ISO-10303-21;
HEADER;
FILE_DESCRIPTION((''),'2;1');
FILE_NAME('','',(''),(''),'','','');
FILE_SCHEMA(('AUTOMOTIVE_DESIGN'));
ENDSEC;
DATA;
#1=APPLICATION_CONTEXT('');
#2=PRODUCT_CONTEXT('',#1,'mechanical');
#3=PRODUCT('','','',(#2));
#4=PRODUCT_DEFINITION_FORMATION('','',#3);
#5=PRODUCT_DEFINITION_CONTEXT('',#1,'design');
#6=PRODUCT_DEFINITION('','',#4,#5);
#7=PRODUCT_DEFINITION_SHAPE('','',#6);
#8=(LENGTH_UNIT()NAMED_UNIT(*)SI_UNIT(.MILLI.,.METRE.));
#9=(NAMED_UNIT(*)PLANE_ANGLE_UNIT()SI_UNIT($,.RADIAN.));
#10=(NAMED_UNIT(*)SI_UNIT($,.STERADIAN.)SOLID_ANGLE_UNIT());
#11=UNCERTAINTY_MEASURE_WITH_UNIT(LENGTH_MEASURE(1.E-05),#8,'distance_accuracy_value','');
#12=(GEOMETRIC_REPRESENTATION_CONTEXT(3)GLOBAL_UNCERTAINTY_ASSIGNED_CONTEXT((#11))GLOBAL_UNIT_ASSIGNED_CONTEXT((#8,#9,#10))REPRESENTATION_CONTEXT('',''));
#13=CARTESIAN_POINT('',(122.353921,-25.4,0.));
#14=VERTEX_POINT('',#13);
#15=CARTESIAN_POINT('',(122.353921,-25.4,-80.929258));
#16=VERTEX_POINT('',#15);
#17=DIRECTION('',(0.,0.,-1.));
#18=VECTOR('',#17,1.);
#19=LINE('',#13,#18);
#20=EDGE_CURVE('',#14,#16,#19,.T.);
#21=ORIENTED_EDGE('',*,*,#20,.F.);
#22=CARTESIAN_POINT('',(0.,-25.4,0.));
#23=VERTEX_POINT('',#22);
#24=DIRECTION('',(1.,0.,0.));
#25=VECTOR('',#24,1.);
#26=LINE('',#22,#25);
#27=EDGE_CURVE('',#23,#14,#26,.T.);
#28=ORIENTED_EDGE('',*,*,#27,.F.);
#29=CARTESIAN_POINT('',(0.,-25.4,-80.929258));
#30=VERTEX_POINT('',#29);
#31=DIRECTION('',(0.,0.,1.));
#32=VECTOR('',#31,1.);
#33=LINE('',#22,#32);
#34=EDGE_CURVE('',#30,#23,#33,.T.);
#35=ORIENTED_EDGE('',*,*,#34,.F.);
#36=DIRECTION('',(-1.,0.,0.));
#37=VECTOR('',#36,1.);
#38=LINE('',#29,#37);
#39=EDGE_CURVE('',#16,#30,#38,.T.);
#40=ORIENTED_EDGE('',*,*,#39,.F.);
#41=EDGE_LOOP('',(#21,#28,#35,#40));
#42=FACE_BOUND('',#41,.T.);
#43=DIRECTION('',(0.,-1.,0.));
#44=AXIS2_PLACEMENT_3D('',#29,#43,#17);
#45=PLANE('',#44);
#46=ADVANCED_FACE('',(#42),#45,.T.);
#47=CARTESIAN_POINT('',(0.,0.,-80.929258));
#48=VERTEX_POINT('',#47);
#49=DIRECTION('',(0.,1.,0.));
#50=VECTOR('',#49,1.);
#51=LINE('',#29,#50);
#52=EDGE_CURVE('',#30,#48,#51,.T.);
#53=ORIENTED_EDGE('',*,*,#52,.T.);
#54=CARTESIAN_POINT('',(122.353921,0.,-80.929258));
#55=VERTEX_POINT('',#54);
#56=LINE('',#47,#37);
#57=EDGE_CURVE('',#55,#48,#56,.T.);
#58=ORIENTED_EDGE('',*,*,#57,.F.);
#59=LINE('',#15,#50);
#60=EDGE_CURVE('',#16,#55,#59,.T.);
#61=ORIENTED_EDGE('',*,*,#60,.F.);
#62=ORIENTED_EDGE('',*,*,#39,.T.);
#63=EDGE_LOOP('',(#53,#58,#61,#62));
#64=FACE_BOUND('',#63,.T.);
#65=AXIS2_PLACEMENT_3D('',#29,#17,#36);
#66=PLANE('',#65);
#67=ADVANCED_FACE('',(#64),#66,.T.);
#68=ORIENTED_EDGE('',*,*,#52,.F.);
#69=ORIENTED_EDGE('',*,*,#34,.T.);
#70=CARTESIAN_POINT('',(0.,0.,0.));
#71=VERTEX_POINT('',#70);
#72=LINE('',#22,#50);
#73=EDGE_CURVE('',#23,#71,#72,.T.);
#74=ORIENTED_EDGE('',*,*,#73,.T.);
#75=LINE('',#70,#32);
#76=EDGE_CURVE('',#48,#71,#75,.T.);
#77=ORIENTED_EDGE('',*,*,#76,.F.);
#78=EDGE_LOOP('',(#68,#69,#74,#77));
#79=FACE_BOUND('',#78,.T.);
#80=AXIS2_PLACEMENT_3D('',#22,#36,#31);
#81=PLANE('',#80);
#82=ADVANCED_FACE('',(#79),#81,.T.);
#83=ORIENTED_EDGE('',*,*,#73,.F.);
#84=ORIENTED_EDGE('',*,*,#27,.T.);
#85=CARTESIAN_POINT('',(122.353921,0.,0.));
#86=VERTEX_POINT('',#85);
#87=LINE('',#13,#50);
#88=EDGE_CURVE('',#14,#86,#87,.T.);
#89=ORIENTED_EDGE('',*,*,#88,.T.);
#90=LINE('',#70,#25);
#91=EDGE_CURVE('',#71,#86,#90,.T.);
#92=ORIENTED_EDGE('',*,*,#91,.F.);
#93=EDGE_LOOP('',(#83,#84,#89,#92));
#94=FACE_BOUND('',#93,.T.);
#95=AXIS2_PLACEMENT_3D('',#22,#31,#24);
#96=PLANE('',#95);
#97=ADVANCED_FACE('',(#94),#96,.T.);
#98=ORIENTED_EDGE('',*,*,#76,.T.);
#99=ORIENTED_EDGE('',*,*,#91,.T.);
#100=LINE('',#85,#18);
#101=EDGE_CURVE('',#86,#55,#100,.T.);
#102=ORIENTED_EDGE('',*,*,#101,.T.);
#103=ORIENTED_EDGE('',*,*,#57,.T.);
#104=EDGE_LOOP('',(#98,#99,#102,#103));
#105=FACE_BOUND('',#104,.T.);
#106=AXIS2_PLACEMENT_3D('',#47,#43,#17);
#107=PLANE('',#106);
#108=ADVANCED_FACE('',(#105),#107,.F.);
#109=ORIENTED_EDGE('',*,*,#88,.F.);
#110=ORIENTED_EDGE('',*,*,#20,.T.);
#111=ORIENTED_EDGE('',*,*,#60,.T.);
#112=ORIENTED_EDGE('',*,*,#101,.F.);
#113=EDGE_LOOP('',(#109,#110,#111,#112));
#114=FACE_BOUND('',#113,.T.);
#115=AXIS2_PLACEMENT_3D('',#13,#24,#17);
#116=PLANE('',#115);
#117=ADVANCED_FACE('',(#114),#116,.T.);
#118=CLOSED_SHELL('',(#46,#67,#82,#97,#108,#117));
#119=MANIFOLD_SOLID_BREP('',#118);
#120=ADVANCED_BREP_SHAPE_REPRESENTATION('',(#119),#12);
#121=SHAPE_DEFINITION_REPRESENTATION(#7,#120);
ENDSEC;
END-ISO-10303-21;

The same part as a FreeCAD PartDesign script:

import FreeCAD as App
import Part
import Sketcher

V = App.Vector
Q = App.Units.Quantity


def add_polygon(sketch, points):
    """Adds a closed chain of lines whose ends are joined by coincident constraints."""
    first, n = sketch.GeometryCount, len(points)
    for a, b in zip(points, points[1:] + points[:1]):
        sketch.addGeometry(Part.LineSegment(App.Vector(*a, 0), App.Vector(*b, 0)), False)
    for i in range(n):
        sketch.addConstraint(Sketcher.Constraint("Coincident", first + i, 2, first + (i + 1) % n, 1))

doc = App.newDocument("Part")
body = doc.addObject("PartDesign::Body", "Body")

# Sketch on XZ plane
sketch1 = body.newObject("Sketcher::SketchObject", "Sketch")
sketch1.AttachmentSupport = (doc.getObject("XZ_Plane"), [""])
sketch1.MapMode = "FlatFace"
add_polygon(sketch1, [(0, -81), (0, 0), (122, 0), (122, -81)])  # lines 0-3
sketch1.addConstraint([
    Sketcher.Constraint("Vertical", 0),
    Sketcher.Constraint("Horizontal", 1),
    Sketcher.Constraint("Vertical", 2),
    Sketcher.Constraint("Horizontal", 3),
    Sketcher.Constraint("Coincident", 0, 2, -1, 1),
    Sketcher.Constraint("DistanceX", 1, 1, 1, 2, 122.353921),
    Sketcher.Constraint("DistanceY", 0, 1, 0, 2, 80.929258),
])
pad1 = body.newObject("PartDesign::Pad", "Pad")
pad1.Profile = sketch1
pad1.Length = Q("1 in")

doc.recompute()
